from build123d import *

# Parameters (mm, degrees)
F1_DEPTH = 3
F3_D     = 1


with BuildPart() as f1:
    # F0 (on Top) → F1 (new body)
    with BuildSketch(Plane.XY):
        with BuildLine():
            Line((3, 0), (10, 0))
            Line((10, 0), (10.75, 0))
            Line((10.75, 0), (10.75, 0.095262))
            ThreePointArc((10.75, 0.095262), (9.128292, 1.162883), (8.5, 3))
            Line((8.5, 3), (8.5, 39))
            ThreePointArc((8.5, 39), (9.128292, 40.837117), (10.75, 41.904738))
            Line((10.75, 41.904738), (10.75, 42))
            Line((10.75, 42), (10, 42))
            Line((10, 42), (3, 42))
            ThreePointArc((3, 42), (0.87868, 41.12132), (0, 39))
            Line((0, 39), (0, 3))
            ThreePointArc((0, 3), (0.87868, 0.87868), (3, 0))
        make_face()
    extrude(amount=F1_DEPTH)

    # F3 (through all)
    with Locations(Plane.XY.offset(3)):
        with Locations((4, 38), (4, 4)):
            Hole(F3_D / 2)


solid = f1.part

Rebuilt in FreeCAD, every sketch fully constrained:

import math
import FreeCAD as App
import Part
import Sketcher

doc = App.newDocument("Part")
params = doc.addObject("Spreadsheet::Sheet", "Params")
for row, (alias, value) in enumerate([
    ("sketch1_radius", "3.000001 mm"),
    ("sketch1_height", "36 mm"),
    ("sketch1_width", "7.75 mm"),
    ("pad1_length", "3 mm"),
    ("sketch2_diameter", "1 mm"),
    ("hole_diameter", "1 mm"),
], start=1):
    params.set(f"A{row}", alias)
    params.set(f"B{row}", "=" + value)
    params.setAlias(f"B{row}", alias)

body = doc.addObject("PartDesign::Body", "Body")

sketch1 = doc.addObject("Sketcher::SketchObject", "Sketch")
body.addObject(sketch1)
sketch1.AttachmentSupport = (doc.XY_Plane, [""])
sketch1.MapMode = "FlatFace"
sketch1.addGeometry(Part.LineSegment(App.Vector(3, 0, 0), App.Vector(10.75, 0, 0)), False)
sketch1.addGeometry(Part.LineSegment(App.Vector(10.75, 0, 0), App.Vector(10.75, 0.1, 0)), False)
sketch1.addGeometry(Part.ArcOfCircle(Part.Circle(App.Vector(11.5, 3, 0), App.Vector(0, 0, 1), 3), math.radians(-180), math.radians(-104)), False)
sketch1.addGeometry(Part.LineSegment(App.Vector(8.5, 3, 0), App.Vector(8.5, 39, 0)), False)
sketch1.addGeometry(Part.ArcOfCircle(Part.Circle(App.Vector(11.5, 39, 0), App.Vector(0, 0, 1), 3), math.radians(104), math.radians(180)), False)
sketch1.addGeometry(Part.LineSegment(App.Vector(10.75, 41.9, 0), App.Vector(10.75, 42, 0)), False)
sketch1.addGeometry(Part.LineSegment(App.Vector(10.75, 42, 0), App.Vector(3, 42, 0)), False)
sketch1.addGeometry(Part.ArcOfCircle(Part.Circle(App.Vector(3, 39, 0), App.Vector(0, 0, 1), 3), math.radians(90), math.radians(180)), False)
sketch1.addGeometry(Part.LineSegment(App.Vector(0, 39, 0), App.Vector(0, 3, 0)), False)
sketch1.addGeometry(Part.ArcOfCircle(Part.Circle(App.Vector(3, 3, 0), App.Vector(0, 0, 1), 3), math.radians(-180), math.radians(-90)), False)
sketch1.addConstraint(Sketcher.Constraint("Coincident", 0, 2, 1, 1))
sketch1.addConstraint(Sketcher.Constraint("Coincident", 1, 2, 2, 2))
sketch1.addConstraint(Sketcher.Constraint("Tangent", 2, 1, 3, 1))
sketch1.addConstraint(Sketcher.Constraint("Tangent", 3, 2, 4, 2))
sketch1.addConstraint(Sketcher.Constraint("Coincident", 4, 1, 5, 1))
sketch1.addConstraint(Sketcher.Constraint("Coincident", 5, 2, 6, 1))
sketch1.addConstraint(Sketcher.Constraint("Tangent", 6, 2, 7, 1))
sketch1.addConstraint(Sketcher.Constraint("Tangent", 7, 2, 8, 1))
sketch1.addConstraint(Sketcher.Constraint("Tangent", 8, 2, 9, 1))
sketch1.addConstraint(Sketcher.Constraint("Tangent", 9, 2, 0, 1))
sketch1.addConstraint(Sketcher.Constraint("Horizontal", 0))
sketch1.addConstraint(Sketcher.Constraint("Vertical", 1))
sketch1.addConstraint(Sketcher.Constraint("Vertical", 3))
sketch1.addConstraint(Sketcher.Constraint("Vertical", 5))
sketch1.addConstraint(Sketcher.Constraint("Horizontal", 6))
sketch1.addConstraint(Sketcher.Constraint("Vertical", 8))
sketch1.addConstraint(Sketcher.Constraint("Equal", 2, 4))
sketch1.addConstraint(Sketcher.Constraint("Equal", 4, 7))
sketch1.addConstraint(Sketcher.Constraint("Equal", 7, 9))
sketch1.addConstraint(Sketcher.Constraint("PointOnObject", 0, 2, -1))
sketch1.addConstraint(Sketcher.Constraint("PointOnObject", 7, 2, -2))
sketch1.addConstraint(Sketcher.Constraint("Horizontal", 4, 3, 7, 3))
sketch1.addConstraint(Sketcher.Constraint("Horizontal", 2, 3, 9, 3))
sketch1.addConstraint(Sketcher.Constraint("Vertical", 1, 2, 4, 1))
sketch1.addConstraint(Sketcher.Constraint("Radius", 7, 3.000001))
sketch1.addConstraint(Sketcher.Constraint("DistanceY", 3, 1, 3, 2, 36.0))
sketch1.addConstraint(Sketcher.Constraint("DistanceX", 0, 1, 0, 2, 7.75))
sketch1.addConstraint(Sketcher.Constraint("DistanceX", -1, 1, 2, 1, 8.5))
sketch1.setExpression("Constraints[24]", "Params.sketch1_radius")
sketch1.setExpression("Constraints[25]", "Params.sketch1_height")
sketch1.setExpression("Constraints[26]", "Params.sketch1_width")
pad1 = doc.addObject("PartDesign::Pad", "Pad")
body.addObject(pad1)
pad1.Profile = sketch1
pad1.setExpression("Length", "Params.pad1_length")

sketch2 = doc.addObject("Sketcher::SketchObject", "Sketch001")
body.addObject(sketch2)
sketch2.AttachmentSupport = (doc.XY_Plane, [""])
sketch2.MapMode = "FlatFace"
sketch2.AttachmentOffset = App.Placement(App.Vector(0, 0, 3), App.Rotation())
sketch2.addGeometry(Part.Circle(App.Vector(4, 38, 0), App.Vector(0, 0, 1), 0.5), False)
sketch2.addGeometry(Part.Circle(App.Vector(4, 4, 0), App.Vector(0, 0, 1), 0.5), False)
sketch2.addConstraint(Sketcher.Constraint("Equal", 0, 1))
sketch2.addConstraint(Sketcher.Constraint("Vertical", 0, 3, 1, 3))
sketch2.addConstraint(Sketcher.Constraint("Diameter", 0, 1.0))
sketch2.addConstraint(Sketcher.Constraint("DistanceX", -1, 1, 0, 3, 4.0))
sketch2.addConstraint(Sketcher.Constraint("DistanceY", -1, 1, 0, 3, 38.0))
sketch2.addConstraint(Sketcher.Constraint("DistanceY", -1, 1, 1, 3, 4.0))
sketch2.setExpression("Constraints[2]", "Params.sketch2_diameter")
doc.recompute()
hole = doc.addObject("PartDesign::Hole", "Hole")
body.addObject(hole)
hole.Profile = sketch2
hole.ThreadType = "None"
hole.setExpression("Diameter", "Params.hole_diameter")
hole.DepthType = "ThroughAll"

doc.recompute()
